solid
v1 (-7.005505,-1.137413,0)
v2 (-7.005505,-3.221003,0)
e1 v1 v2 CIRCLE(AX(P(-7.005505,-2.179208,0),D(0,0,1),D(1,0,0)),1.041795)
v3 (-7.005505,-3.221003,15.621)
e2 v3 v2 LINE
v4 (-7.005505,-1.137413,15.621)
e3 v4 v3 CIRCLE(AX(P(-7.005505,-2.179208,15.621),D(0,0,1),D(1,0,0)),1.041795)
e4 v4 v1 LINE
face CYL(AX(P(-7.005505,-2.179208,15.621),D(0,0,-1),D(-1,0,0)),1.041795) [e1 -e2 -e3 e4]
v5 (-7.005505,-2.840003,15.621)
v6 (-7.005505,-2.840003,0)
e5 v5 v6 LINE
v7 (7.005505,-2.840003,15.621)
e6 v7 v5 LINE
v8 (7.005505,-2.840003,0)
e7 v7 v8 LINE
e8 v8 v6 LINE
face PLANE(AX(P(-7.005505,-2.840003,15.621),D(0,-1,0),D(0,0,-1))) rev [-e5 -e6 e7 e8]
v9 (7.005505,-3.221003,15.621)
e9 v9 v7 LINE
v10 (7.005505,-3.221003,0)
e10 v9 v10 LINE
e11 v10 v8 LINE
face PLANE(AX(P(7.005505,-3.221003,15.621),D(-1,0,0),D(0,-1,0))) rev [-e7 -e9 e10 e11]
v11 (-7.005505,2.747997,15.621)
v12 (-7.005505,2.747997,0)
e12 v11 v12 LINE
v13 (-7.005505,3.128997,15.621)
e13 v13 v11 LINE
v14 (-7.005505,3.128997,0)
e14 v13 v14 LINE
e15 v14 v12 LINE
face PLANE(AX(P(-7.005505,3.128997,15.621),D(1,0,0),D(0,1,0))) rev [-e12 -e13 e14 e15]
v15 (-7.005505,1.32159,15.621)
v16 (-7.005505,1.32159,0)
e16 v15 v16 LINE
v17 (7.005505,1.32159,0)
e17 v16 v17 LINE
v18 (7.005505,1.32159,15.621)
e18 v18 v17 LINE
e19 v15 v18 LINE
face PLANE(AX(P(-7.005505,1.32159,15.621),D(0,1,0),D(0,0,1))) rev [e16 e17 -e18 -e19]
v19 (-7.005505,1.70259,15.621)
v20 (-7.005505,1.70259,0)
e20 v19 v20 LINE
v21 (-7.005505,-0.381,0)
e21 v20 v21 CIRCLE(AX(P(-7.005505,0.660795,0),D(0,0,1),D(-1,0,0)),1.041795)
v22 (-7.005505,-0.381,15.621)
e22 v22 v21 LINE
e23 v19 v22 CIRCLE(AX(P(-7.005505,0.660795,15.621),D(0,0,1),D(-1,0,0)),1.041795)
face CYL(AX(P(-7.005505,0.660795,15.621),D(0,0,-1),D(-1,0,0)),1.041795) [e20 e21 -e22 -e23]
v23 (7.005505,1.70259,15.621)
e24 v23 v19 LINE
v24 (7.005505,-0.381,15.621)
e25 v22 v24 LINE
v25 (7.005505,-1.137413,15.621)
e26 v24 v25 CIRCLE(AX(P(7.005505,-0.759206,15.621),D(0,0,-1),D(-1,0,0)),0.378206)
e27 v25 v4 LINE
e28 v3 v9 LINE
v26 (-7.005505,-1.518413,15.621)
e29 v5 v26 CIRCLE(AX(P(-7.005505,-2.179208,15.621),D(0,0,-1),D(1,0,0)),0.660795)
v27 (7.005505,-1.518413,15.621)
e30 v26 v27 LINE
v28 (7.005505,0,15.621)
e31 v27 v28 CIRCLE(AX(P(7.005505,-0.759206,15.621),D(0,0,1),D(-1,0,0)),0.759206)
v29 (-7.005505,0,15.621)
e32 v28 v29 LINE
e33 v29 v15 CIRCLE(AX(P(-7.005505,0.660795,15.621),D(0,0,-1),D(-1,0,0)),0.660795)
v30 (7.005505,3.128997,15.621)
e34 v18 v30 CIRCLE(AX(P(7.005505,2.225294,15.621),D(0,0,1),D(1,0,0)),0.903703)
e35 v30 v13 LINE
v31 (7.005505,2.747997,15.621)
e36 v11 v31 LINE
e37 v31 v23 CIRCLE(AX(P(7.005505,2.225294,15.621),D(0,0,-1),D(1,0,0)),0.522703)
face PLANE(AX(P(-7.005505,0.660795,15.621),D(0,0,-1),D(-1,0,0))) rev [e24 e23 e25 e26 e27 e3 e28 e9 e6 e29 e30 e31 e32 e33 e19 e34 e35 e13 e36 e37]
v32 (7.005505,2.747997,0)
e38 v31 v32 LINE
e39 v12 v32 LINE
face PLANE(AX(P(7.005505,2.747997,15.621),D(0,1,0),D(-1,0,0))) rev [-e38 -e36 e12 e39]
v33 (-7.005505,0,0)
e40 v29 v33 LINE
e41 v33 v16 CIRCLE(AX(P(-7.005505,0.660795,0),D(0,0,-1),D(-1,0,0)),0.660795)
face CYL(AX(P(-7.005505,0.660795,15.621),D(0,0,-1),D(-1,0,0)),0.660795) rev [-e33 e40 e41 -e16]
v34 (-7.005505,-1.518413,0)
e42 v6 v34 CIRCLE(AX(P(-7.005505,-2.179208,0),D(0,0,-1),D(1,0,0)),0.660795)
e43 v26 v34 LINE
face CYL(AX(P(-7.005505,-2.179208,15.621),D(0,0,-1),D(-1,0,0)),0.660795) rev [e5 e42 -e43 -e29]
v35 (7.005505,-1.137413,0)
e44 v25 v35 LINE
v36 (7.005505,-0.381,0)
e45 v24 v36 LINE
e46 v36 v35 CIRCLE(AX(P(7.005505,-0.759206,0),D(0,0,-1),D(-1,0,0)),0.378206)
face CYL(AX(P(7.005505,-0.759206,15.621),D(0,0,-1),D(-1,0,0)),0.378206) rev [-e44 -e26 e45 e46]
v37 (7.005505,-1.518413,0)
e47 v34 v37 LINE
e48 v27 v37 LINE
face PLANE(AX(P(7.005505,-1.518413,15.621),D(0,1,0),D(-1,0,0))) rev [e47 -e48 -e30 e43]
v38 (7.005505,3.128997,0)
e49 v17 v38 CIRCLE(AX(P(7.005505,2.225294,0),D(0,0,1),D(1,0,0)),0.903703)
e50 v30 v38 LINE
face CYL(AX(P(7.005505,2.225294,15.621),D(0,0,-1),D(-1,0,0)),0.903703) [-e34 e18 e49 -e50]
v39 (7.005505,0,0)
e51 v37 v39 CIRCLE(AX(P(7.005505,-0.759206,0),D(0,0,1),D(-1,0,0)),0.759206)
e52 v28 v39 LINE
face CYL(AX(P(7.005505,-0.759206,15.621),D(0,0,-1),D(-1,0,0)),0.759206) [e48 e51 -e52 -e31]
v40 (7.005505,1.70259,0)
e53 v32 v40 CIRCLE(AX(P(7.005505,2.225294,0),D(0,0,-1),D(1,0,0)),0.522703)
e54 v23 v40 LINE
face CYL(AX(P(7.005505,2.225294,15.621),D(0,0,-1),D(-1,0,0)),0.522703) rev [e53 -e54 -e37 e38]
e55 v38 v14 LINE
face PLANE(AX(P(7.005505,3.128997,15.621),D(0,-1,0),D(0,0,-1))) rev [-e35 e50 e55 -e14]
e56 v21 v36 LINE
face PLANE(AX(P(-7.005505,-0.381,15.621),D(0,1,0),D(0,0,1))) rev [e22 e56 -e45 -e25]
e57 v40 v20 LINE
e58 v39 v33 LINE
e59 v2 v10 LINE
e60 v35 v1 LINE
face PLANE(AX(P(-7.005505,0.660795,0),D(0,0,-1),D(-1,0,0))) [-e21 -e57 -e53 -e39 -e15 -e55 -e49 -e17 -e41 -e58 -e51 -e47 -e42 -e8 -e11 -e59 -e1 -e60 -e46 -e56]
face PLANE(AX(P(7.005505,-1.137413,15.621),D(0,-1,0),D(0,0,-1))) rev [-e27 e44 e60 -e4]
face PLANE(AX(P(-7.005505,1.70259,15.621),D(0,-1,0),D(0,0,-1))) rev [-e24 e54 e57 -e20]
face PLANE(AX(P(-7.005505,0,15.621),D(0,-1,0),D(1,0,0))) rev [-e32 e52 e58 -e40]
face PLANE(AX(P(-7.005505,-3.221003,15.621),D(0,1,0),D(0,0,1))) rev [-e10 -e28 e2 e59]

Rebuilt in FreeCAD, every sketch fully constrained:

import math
import FreeCAD as App
import Part
import Sketcher
Q = App.Units.Quantity

doc = App.newDocument("Part")
params = doc.addObject("Spreadsheet::Sheet", "Params")
for row, (alias, value) in enumerate([
    ("sketch1_height", "0.015 in"),
    ("pad1_length", "0.615 in"),
], start=1):
    params.set(f"A{row}", alias)
    params.set(f"B{row}", "=" + value)
    params.setAlias(f"B{row}", alias)

body = doc.addObject("PartDesign::Body", "Body")

sketch1 = body.newObject("Sketcher::SketchObject", "Sketch")
sketch1.AttachmentSupport = (doc.getObject("XY_Plane"), [""])
sketch1.MapMode = "FlatFace"
sketch1.addGeometry(Part.LineSegment(App.Vector(7.01, 0, 0), App.Vector(-7.01, 0, 0)), False)
sketch1.addGeometry(Part.ArcOfCircle(Part.Circle(App.Vector(-7.01, 0.66, 0), App.Vector(0, 0, 1), 0.66), math.radians(90), math.radians(270)), False)
sketch1.addGeometry(Part.LineSegment(App.Vector(-7.01, 1.32, 0), App.Vector(7.01, 1.32, 0)), False)
sketch1.addGeometry(Part.ArcOfCircle(Part.Circle(App.Vector(7.01, 2.23, 0), App.Vector(0, 0, 1), 0.9), math.radians(-90), math.radians(90)), False)
sketch1.addGeometry(Part.LineSegment(App.Vector(7.01, 3.13, 0), App.Vector(-7.01, 3.13, 0)), False)
sketch1.addGeometry(Part.LineSegment(App.Vector(-7.01, 3.13, 0), App.Vector(-7.01, 2.75, 0)), False)
sketch1.addGeometry(Part.LineSegment(App.Vector(-7.01, 2.75, 0), App.Vector(7.01, 2.75, 0)), False)
sketch1.addGeometry(Part.ArcOfCircle(Part.Circle(App.Vector(7.01, 2.23, 0), App.Vector(0, 0, 1), 0.52), math.radians(-90), math.radians(90)), False)
sketch1.addGeometry(Part.LineSegment(App.Vector(7.01, 1.7, 0), App.Vector(-7.01, 1.7, 0)), False)
sketch1.addGeometry(Part.ArcOfCircle(Part.Circle(App.Vector(-7.01, 0.66, 0), App.Vector(0, 0, 1), 1.04), math.radians(90), math.radians(270)), False)
sketch1.addGeometry(Part.LineSegment(App.Vector(-7.01, -0.38, 0), App.Vector(7.01, -0.38, 0)), False)
sketch1.addGeometry(Part.ArcOfCircle(Part.Circle(App.Vector(7.01, -0.76, 0), App.Vector(0, 0, 1), 0.38), math.radians(-90), math.radians(90)), False)
sketch1.addGeometry(Part.LineSegment(App.Vector(7.01, -1.14, 0), App.Vector(-7.01, -1.14, 0)), False)
sketch1.addGeometry(Part.ArcOfCircle(Part.Circle(App.Vector(-7.01, -2.18, 0), App.Vector(0, 0, 1), 1.04), math.radians(90), math.radians(270)), False)
sketch1.addGeometry(Part.LineSegment(App.Vector(-7.01, -3.22, 0), App.Vector(7.01, -3.22, 0)), False)
sketch1.addGeometry(Part.LineSegment(App.Vector(7.01, -3.22, 0), App.Vector(7.01, -2.84, 0)), False)
sketch1.addGeometry(Part.LineSegment(App.Vector(7.01, -2.84, 0), App.Vector(-7.01, -2.84, 0)), False)
sketch1.addGeometry(Part.ArcOfCircle(Part.Circle(App.Vector(-7.01, -2.18, 0), App.Vector(0, 0, 1), 0.66), math.radians(90), math.radians(270)), False)
sketch1.addGeometry(Part.LineSegment(App.Vector(-7.01, -1.52, 0), App.Vector(7.01, -1.52, 0)), False)
sketch1.addGeometry(Part.ArcOfCircle(Part.Circle(App.Vector(7.01, -0.76, 0), App.Vector(0, 0, 1), 0.76), math.radians(-90), math.radians(90)), False)
sketch1.addConstraint(Sketcher.Constraint("Tangent", 0, 2, 1, 2))
sketch1.addConstraint(Sketcher.Constraint("Tangent", 1, 1, 2, 1))
sketch1.addConstraint(Sketcher.Constraint("Tangent", 2, 2, 3, 1))
sketch1.addConstraint(Sketcher.Constraint("Tangent", 3, 2, 4, 1))
sketch1.addConstraint(Sketcher.Constraint("Coincident", 4, 2, 5, 1))
sketch1.addConstraint(Sketcher.Constraint("Coincident", 5, 2, 6, 1))
sketch1.addConstraint(Sketcher.Constraint("Tangent", 6, 2, 7, 2))
sketch1.addConstraint(Sketcher.Constraint("Tangent", 7, 1, 8, 1))
sketch1.addConstraint(Sketcher.Constraint("Tangent", 8, 2, 9, 1))
sketch1.addConstraint(Sketcher.Constraint("Tangent", 9, 2, 10, 1))
sketch1.addConstraint(Sketcher.Constraint("Tangent", 10, 2, 11, 2))
sketch1.addConstraint(Sketcher.Constraint("Tangent", 11, 1, 12, 1))
sketch1.addConstraint(Sketcher.Constraint("Tangent", 12, 2, 13, 1))
sketch1.addConstraint(Sketcher.Constraint("Tangent", 13, 2, 14, 1))
sketch1.addConstraint(Sketcher.Constraint("Coincident", 14, 2, 15, 1))
sketch1.addConstraint(Sketcher.Constraint("Coincident", 15, 2, 16, 1))
sketch1.addConstraint(Sketcher.Constraint("Tangent", 16, 2, 17, 2))
sketch1.addConstraint(Sketcher.Constraint("Tangent", 17, 1, 18, 1))
sketch1.addConstraint(Sketcher.Constraint("Tangent", 18, 2, 19, 1))
sketch1.addConstraint(Sketcher.Constraint("Tangent", 19, 2, 0, 1))
sketch1.addConstraint(Sketcher.Constraint("Horizontal", 0))
sketch1.addConstraint(Sketcher.Constraint("Horizontal", 2))
sketch1.addConstraint(Sketcher.Constraint("Horizontal", 4))
sketch1.addConstraint(Sketcher.Constraint("Vertical", 5))
sketch1.addConstraint(Sketcher.Constraint("Horizontal", 6))
sketch1.addConstraint(Sketcher.Constraint("Horizontal", 8))
sketch1.addConstraint(Sketcher.Constraint("Horizontal", 10))
sketch1.addConstraint(Sketcher.Constraint("Horizontal", 12))
sketch1.addConstraint(Sketcher.Constraint("Horizontal", 14))
sketch1.addConstraint(Sketcher.Constraint("Vertical", 15))
sketch1.addConstraint(Sketcher.Constraint("Horizontal", 16))
sketch1.addConstraint(Sketcher.Constraint("Horizontal", 18))
sketch1.addConstraint(Sketcher.Constraint("Coincident", 7, 3, 3, 3))
sketch1.addConstraint(Sketcher.Constraint("Coincident", 9, 3, 1, 3))
sketch1.addConstraint(Sketcher.Constraint("Coincident", 17, 3, 13, 3))
sketch1.addConstraint(Sketcher.Constraint("Coincident", 19, 3, 11, 3))
sketch1.addConstraint(Sketcher.Constraint("Equal", 9, 13))
sketch1.addConstraint(Sketcher.Constraint("Symmetric", 0, 2, 19, 2, -1, 1))
sketch1.addConstraint(Sketcher.Constraint("Vertical", 7, 3, 11, 3))
sketch1.addConstraint(Sketcher.Constraint("Vertical", 9, 3, 13, 3))
sketch1.addConstraint(Sketcher.Constraint("Vertical", 1, 1, 4, 2))
sketch1.addConstraint(Sketcher.Constraint("Vertical", 11, 1, 14, 2))
sketch1.addConstraint(Sketcher.Constraint("DistanceY", 5, 2, 5, 1, Q("0.015 in")))
sketch1.addConstraint(Sketcher.Constraint("Radius", 1, Q("0.660795 mm")))
sketch1.addConstraint(Sketcher.Constraint("Radius", 3, Q("0.903703 mm")))
sketch1.addConstraint(Sketcher.Constraint("Radius", 11, Q("0.378206 mm")))
sketch1.addConstraint(Sketcher.Constraint("DistanceX", 0, 2, 0, 1, Q("14.01101 mm")))
sketch1.setExpression("Constraints[42]", "Params.sketch1_height")
pad1 = body.newObject("PartDesign::Pad", "Pad")
pad1.Profile = sketch1
pad1.setExpression("Length", "Params.pad1_length")

doc.recompute()
